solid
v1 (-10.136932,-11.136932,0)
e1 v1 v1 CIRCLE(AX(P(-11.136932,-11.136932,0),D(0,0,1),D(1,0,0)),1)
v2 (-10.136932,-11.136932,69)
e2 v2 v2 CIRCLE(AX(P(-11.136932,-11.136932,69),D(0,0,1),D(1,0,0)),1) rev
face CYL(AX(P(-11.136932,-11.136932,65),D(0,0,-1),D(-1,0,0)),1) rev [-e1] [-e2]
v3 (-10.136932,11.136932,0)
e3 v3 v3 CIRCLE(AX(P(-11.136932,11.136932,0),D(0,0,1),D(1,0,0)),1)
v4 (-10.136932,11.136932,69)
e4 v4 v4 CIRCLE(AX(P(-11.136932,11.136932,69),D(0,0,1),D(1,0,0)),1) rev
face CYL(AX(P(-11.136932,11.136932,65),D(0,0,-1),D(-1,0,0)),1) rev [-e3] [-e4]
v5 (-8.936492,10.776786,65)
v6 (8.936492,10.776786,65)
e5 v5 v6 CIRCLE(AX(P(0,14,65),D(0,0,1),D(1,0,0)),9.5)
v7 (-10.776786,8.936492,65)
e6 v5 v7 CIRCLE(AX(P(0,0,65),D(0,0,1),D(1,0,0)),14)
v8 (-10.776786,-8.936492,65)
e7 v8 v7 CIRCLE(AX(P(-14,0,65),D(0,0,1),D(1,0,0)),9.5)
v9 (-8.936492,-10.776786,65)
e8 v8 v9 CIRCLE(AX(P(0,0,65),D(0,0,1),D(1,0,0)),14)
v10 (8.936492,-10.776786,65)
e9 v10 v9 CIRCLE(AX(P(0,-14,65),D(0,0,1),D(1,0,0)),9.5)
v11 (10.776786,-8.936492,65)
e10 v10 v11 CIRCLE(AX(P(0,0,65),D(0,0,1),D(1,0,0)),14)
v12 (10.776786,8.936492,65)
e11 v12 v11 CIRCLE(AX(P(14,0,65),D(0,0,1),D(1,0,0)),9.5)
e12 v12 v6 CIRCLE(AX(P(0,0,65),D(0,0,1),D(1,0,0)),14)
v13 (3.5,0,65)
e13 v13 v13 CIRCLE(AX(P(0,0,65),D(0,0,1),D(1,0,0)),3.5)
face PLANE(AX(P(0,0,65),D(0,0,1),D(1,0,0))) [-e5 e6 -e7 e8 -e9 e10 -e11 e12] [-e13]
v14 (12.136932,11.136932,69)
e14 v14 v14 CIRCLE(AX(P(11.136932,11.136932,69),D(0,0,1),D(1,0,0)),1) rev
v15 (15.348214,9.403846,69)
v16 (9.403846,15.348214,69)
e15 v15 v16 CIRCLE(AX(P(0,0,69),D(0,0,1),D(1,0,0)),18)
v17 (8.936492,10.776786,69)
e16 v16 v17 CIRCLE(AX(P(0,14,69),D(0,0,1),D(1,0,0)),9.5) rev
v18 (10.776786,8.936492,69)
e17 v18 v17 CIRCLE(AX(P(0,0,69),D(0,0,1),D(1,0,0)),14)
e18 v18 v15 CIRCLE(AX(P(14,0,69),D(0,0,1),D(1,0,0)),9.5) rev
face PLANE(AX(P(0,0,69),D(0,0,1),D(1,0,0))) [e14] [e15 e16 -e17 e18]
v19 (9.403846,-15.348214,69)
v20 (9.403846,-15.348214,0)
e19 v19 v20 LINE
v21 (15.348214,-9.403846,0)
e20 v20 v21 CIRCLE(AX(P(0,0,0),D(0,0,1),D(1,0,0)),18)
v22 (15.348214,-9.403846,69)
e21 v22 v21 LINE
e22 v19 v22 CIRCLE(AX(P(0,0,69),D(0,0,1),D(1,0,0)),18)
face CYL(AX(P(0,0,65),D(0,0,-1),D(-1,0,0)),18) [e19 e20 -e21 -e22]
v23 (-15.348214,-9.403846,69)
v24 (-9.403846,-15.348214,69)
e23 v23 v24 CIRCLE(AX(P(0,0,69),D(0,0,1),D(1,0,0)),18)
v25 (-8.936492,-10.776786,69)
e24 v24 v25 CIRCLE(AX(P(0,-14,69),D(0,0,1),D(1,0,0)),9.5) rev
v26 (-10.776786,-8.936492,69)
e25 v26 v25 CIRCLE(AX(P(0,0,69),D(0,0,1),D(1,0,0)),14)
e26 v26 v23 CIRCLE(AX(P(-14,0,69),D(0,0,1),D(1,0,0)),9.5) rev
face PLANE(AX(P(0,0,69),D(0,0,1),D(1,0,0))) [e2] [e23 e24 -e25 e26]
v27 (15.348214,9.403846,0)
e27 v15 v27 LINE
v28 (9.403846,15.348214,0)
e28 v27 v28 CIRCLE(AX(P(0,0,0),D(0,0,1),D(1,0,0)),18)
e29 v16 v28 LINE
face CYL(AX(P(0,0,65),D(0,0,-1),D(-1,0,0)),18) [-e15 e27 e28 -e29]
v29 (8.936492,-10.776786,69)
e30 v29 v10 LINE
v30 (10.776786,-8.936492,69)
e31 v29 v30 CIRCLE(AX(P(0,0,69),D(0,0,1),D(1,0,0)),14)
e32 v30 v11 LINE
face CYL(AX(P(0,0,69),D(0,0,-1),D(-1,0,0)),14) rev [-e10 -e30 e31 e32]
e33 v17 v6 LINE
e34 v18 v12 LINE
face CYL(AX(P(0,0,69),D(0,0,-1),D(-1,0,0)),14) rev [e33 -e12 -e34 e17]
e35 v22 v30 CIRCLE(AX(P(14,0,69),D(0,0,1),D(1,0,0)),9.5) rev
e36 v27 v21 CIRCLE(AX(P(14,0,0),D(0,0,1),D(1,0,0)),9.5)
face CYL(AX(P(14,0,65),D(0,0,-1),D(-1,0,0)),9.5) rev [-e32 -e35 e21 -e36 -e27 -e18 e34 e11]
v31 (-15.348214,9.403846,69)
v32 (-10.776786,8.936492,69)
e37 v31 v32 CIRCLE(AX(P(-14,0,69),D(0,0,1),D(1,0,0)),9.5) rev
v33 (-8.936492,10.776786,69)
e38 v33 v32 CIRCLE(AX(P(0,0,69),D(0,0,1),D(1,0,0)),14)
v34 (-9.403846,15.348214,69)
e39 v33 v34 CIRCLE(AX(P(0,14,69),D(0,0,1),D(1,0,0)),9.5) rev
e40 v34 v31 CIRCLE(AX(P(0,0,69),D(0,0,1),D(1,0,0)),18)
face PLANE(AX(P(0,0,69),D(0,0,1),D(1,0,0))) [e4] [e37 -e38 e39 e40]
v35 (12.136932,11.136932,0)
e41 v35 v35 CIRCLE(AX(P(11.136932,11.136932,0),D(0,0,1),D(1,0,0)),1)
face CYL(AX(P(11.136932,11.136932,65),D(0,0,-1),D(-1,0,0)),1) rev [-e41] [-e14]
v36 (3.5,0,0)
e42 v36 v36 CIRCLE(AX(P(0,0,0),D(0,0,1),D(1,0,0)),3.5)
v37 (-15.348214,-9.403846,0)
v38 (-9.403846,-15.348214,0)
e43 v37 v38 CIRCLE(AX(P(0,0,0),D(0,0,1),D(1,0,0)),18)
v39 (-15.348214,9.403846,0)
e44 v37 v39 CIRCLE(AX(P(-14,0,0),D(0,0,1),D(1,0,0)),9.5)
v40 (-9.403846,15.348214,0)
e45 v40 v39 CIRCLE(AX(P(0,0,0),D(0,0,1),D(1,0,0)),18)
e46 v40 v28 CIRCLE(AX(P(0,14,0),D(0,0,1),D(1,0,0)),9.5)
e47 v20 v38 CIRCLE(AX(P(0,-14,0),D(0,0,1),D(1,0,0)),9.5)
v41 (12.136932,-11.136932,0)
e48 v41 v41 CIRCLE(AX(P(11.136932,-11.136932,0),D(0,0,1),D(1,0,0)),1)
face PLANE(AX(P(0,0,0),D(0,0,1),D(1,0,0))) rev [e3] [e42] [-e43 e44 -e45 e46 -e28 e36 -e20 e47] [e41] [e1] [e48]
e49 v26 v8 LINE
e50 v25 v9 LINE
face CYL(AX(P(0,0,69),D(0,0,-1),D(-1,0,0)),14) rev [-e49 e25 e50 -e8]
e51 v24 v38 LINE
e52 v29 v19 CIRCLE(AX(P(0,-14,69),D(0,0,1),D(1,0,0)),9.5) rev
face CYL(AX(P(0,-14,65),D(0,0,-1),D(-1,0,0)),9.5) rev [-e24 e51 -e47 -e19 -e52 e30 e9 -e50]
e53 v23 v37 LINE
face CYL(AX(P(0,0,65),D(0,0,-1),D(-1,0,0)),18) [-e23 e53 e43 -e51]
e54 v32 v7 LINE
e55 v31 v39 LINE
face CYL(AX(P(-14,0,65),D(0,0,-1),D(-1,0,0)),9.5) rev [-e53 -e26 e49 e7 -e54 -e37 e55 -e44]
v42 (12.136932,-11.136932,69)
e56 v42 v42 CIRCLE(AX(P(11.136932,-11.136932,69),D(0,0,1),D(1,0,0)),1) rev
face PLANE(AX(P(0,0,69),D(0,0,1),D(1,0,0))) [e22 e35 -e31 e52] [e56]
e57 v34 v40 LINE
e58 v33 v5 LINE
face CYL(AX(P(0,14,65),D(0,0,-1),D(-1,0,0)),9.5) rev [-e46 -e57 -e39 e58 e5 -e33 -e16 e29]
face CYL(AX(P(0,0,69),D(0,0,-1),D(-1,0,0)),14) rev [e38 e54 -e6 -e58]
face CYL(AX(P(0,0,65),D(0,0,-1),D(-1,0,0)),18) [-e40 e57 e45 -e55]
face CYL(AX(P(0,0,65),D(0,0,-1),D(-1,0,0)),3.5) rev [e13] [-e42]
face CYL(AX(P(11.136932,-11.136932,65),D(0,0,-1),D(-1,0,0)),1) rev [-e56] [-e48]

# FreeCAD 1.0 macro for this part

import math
import FreeCAD as App
import Part
import Sketcher
Q = App.Units.Quantity

doc = App.newDocument("Part")
params = doc.addObject("Spreadsheet::Sheet", "Params")
for row, (alias, value) in enumerate([
    ("sketch1_diameter", "2 mm"),
    ("sketch1_diameter2", "7 mm"),
    ("sketch1_radius", "18 mm"),
    ("sketch1_radius2", "9.5 mm"),
    ("pad1_length", "65 mm"),
    ("sketch2_diameter", "2 mm"),
    ("sketch2_radius", "14 mm"),
    ("sketch2_radius2", "18 mm"),
    ("sketch2_radius3", "9.5 mm"),
    ("pad2_length", "4 mm"),
], start=1):
    params.set(f"A{row}", alias)
    params.set(f"B{row}", "=" + value)
    params.setAlias(f"B{row}", alias)

body = doc.addObject("PartDesign::Body", "Body")

# Sketch on XY plane
sketch1 = body.newObject("Sketcher::SketchObject", "Sketch")
sketch1.AttachmentSupport = (doc.getObject("XY_Plane"), [""])
sketch1.MapMode = "FlatFace"
sketch1.addGeometry([
    Part.ArcOfCircle(Part.Circle(App.Vector(14, 0, 0), App.Vector(0, 0, 1), 9.5), math.radians(81.841193), math.radians(278.158807)),  # 0
    Part.ArcOfCircle(Part.Circle(App.Vector(0, 0, 0), App.Vector(0, 0, 1), 18), math.radians(31.495788), math.radians(58.504212)),  # 1
    Part.ArcOfCircle(Part.Circle(App.Vector(0, 14, 0), App.Vector(0, 0, 1), 9.5), math.radians(0), math.radians(8.158807)),  # 2
    Part.ArcOfCircle(Part.Circle(App.Vector(0, 14, 0), App.Vector(0, 0, 1), 9.5), math.radians(171.841193), math.radians(360)),  # 3
    Part.ArcOfCircle(Part.Circle(App.Vector(0, 0, 0), App.Vector(0, 0, 1), 18), math.radians(121.495788), math.radians(148.504212)),  # 4
    Part.ArcOfCircle(Part.Circle(App.Vector(-14, 0, 0), App.Vector(0, 0, 1), 9.5), math.radians(0), math.radians(98.158807)),  # 5
    Part.ArcOfCircle(Part.Circle(App.Vector(-14, 0, 0), App.Vector(0, 0, 1), 9.5), math.radians(-98.158807), math.radians(0)),  # 6
    Part.ArcOfCircle(Part.Circle(App.Vector(0, 0, 0), App.Vector(0, 0, 1), 18), math.radians(-148.504212), math.radians(-121.495788)),  # 7
    Part.ArcOfCircle(Part.Circle(App.Vector(0, -14, 0), App.Vector(0, 0, 1), 9.5), math.radians(0), math.radians(188.158807)),  # 8
    Part.ArcOfCircle(Part.Circle(App.Vector(0, -14, 0), App.Vector(0, 0, 1), 9.5), math.radians(-8.158807), math.radians(0)),  # 9
    Part.ArcOfCircle(Part.Circle(App.Vector(0, 0, 0), App.Vector(0, 0, 1), 18), math.radians(-58.504212), math.radians(-31.495788)),  # 10
    Part.Circle(App.Vector(-11.136932, -11.136932, 0), App.Vector(0, 0, 1), 1),  # 11
    Part.Circle(App.Vector(11.136932, -11.136932, 0), App.Vector(0, 0, 1), 1),  # 12
    Part.Circle(App.Vector(-11.136932, 11.136932, 0), App.Vector(0, 0, 1), 1),  # 13
    Part.Circle(App.Vector(0, 0, 0), App.Vector(0, 0, 1), 3.5),  # 14
    Part.Circle(App.Vector(11.136932, 11.136932, 0), App.Vector(0, 0, 1), 1),  # 15
], False)
sketch1.addConstraint([
    Sketcher.Constraint("Coincident", 0, 1, 1, 1),
    Sketcher.Constraint("Coincident", 1, 2, 2, 2),
    Sketcher.Constraint("Tangent", 2, 1, 3, 2),
    Sketcher.Constraint("Coincident", 3, 1, 4, 1),
    Sketcher.Constraint("Coincident", 4, 2, 5, 2),
    Sketcher.Constraint("Tangent", 5, 1, 6, 2),
    Sketcher.Constraint("Coincident", 6, 1, 7, 1),
    Sketcher.Constraint("Coincident", 7, 2, 8, 2),
    Sketcher.Constraint("Tangent", 8, 1, 9, 2),
    Sketcher.Constraint("Coincident", 9, 1, 10, 1),
    Sketcher.Constraint("Coincident", 10, 2, 0, 2),
    Sketcher.Constraint("Coincident", 1, 3, -1, 1),
    Sketcher.Constraint("Coincident", 4, 3, -1, 1),
    Sketcher.Constraint("Coincident", 7, 3, -1, 1),
    Sketcher.Constraint("Coincident", 10, 3, -1, 1),
    Sketcher.Constraint("Coincident", 14, 3, -1, 1),
    Sketcher.Constraint("Equal", 0, 2),
    Sketcher.Constraint("Equal", 2, 3),
    Sketcher.Constraint("Equal", 1, 4),
    Sketcher.Constraint("Equal", 3, 5),
    Sketcher.Constraint("Equal", 5, 6),
    Sketcher.Constraint("Equal", 4, 7),
    Sketcher.Constraint("Equal", 6, 8),
    Sketcher.Constraint("Equal", 8, 9),
    Sketcher.Constraint("Equal", 7, 10),
    Sketcher.Constraint("Equal", 11, 12),
    Sketcher.Constraint("Equal", 12, 13),
    Sketcher.Constraint("Equal", 13, 15),
    Sketcher.Constraint("Symmetric", 0, 3, 5, 3, -1, 1),
    Sketcher.Constraint("Symmetric", 2, 3, 8, 3, -1, 1),
    Sketcher.Constraint("Symmetric", 12, 3, 13, 3, -1, 1),
    Sketcher.Constraint("Symmetric", 11, 3, 15, 3, -1, 1),
    Sketcher.Constraint("Symmetric", 11, 3, 12, 3, -2),
    Sketcher.Constraint("Symmetric", 2, 1, 8, 1, -1),
    Sketcher.Constraint("PointOnObject", 0, 3, -1),
    Sketcher.Constraint("PointOnObject", 5, 1, -1),
    Sketcher.Constraint("Horizontal", 3, 3, 2, 1),
    Sketcher.Constraint("Diameter", 11, Q("2 mm")),
    Sketcher.Constraint("Diameter", 14, Q("7 mm")),
    Sketcher.Constraint("Radius", 1, Q("18 mm")),
    Sketcher.Constraint("Radius", 0, Q("9.5 mm")),
    Sketcher.Constraint("DistanceX", -1, 1, 0, 3, Q("14 mm")),
    Sketcher.Constraint("DistanceY", -1, 1, 2, 3, Q("14 mm")),
    Sketcher.Constraint("DistanceX", 11, 3, -1, 1, Q("11.136932 mm")),
    Sketcher.Constraint("DistanceY", 11, 3, -1, 1, Q("11.136932 mm")),
])
sketch1.setExpression("Constraints[37]", "Params.sketch1_diameter")
sketch1.setExpression("Constraints[38]", "Params.sketch1_diameter2")
sketch1.setExpression("Constraints[39]", "Params.sketch1_radius")
sketch1.setExpression("Constraints[40]", "Params.sketch1_radius2")
pad1 = body.newObject("PartDesign::Pad", "Pad")
pad1.Profile = sketch1
pad1.setExpression("Length", "Params.pad1_length")

# Sketch on XY plane
sketch2 = body.newObject("Sketcher::SketchObject", "Sketch001")
sketch2.AttachmentSupport = (doc.getObject("XY_Plane"), [""])
sketch2.MapMode = "FlatFace"
sketch2.AttachmentOffset = App.Placement(App.Vector(0, 0, 65), App.Rotation())
sketch2.addGeometry([
    Part.ArcOfCircle(Part.Circle(App.Vector(0, -14, 0), App.Vector(0, 0, 1), 9.5), math.radians(160.166638), math.radians(188.158807)),  # 0
    Part.ArcOfCircle(Part.Circle(App.Vector(0, 0, 0), App.Vector(0, 0, 1), 14), math.radians(-140.333276), math.radians(-129.666724)),  # 1
    Part.ArcOfCircle(Part.Circle(App.Vector(-14, 0, 0), App.Vector(0, 0, 1), 9.5), math.radians(-98.158807), math.radians(-70.166638)),  # 2
    Part.ArcOfCircle(Part.Circle(App.Vector(0, 0, 0), App.Vector(0, 0, 1), 18), math.radians(-148.504212), math.radians(-121.495788)),  # 3
    Part.Circle(App.Vector(-11.136932, -11.136932, 0), App.Vector(0, 0, 1), 1),  # 4
    Part.ArcOfCircle(Part.Circle(App.Vector(14, 0, 0), App.Vector(0, 0, 1), 9.5), math.radians(-109.833362), math.radians(-81.841193)),  # 5
    Part.ArcOfCircle(Part.Circle(App.Vector(0, 0, 0), App.Vector(0, 0, 1), 14), math.radians(-50.333276), math.radians(-39.666724)),  # 6
    Part.ArcOfCircle(Part.Circle(App.Vector(0, -14, 0), App.Vector(0, 0, 1), 9.5), math.radians(0), math.radians(19.833362)),  # 7
    Part.ArcOfCircle(Part.Circle(App.Vector(0, -14, 0), App.Vector(0, 0, 1), 9.5), math.radians(-8.158807), math.radians(0)),  # 8
    Part.ArcOfCircle(Part.Circle(App.Vector(0, 0, 0), App.Vector(0, 0, 1), 18), math.radians(-58.504212), math.radians(-31.495788)),  # 9
    Part.Circle(App.Vector(11.136932, -11.136932, 0), App.Vector(0, 0, 1), 1),  # 10
    Part.ArcOfCircle(Part.Circle(App.Vector(0, 0, 0), App.Vector(0, 0, 1), 14), math.radians(39.666724), math.radians(50.333276)),  # 11
    Part.ArcOfCircle(Part.Circle(App.Vector(14, 0, 0), App.Vector(0, 0, 1), 9.5), math.radians(81.841193), math.radians(109.833362)),  # 12
    Part.ArcOfCircle(Part.Circle(App.Vector(0, 0, 0), App.Vector(0, 0, 1), 18), math.radians(31.495788), math.radians(58.504212)),  # 13
    Part.ArcOfCircle(Part.Circle(App.Vector(0, 14, 0), App.Vector(0, 0, 1), 9.5), math.radians(0), math.radians(8.158807)),  # 14
    Part.ArcOfCircle(Part.Circle(App.Vector(0, 14, 0), App.Vector(0, 0, 1), 9.5), math.radians(-19.833362), math.radians(0)),  # 15
    Part.Circle(App.Vector(11.136932, 11.136932, 0), App.Vector(0, 0, 1), 1),  # 16
    Part.ArcOfCircle(Part.Circle(App.Vector(0, 0, 0), App.Vector(0, 0, 1), 14), math.radians(129.666724), math.radians(140.333276)),  # 17
    Part.ArcOfCircle(Part.Circle(App.Vector(0, 14, 0), App.Vector(0, 0, 1), 9.5), math.radians(171.841193), math.radians(199.833362)),  # 18
    Part.ArcOfCircle(Part.Circle(App.Vector(0, 0, 0), App.Vector(0, 0, 1), 18), math.radians(121.495788), math.radians(148.504212)),  # 19
    Part.ArcOfCircle(Part.Circle(App.Vector(-14, 0, 0), App.Vector(0, 0, 1), 9.5), math.radians(70.166638), math.radians(98.158807)),  # 20
    Part.Circle(App.Vector(-11.136932, 11.136932, 0), App.Vector(0, 0, 1), 1),  # 21
], False)
sketch2.addConstraint([
    Sketcher.Constraint("Coincident", 0, 1, 1, 2),
    Sketcher.Constraint("Coincident", 1, 1, 2, 2),
    Sketcher.Constraint("Coincident", 2, 1, 3, 1),
    Sketcher.Constraint("Coincident", 3, 2, 0, 2),
    Sketcher.Constraint("Coincident", 5, 1, 6, 2),
    Sketcher.Constraint("Coincident", 6, 1, 7, 2),
    Sketcher.Constraint("Tangent", 7, 1, 8, 2),
    Sketcher.Constraint("Coincident", 8, 1, 9, 1),
    Sketcher.Constraint("Coincident", 9, 2, 5, 2),
    Sketcher.Constraint("Coincident", 11, 1, 12, 2),
    Sketcher.Constraint("Coincident", 12, 1, 13, 1),
    Sketcher.Constraint("Coincident", 13, 2, 14, 2),
    Sketcher.Constraint("Tangent", 14, 1, 15, 2),
    Sketcher.Constraint("Coincident", 15, 1, 11, 2),
    Sketcher.Constraint("Coincident", 17, 1, 18, 2),
    Sketcher.Constraint("Coincident", 18, 1, 19, 1),
    Sketcher.Constraint("Coincident", 19, 2, 20, 2),
    Sketcher.Constraint("Coincident", 20, 1, 17, 2),
    Sketcher.Constraint("Coincident", 1, 3, -1, 1),
    Sketcher.Constraint("Coincident", 3, 3, -1, 1),
    Sketcher.Constraint("Coincident", 6, 3, -1, 1),
    Sketcher.Constraint("Coincident", 9, 3, -1, 1),
    Sketcher.Constraint("Coincident", 11, 3, -1, 1),
    Sketcher.Constraint("Coincident", 13, 3, -1, 1),
    Sketcher.Constraint("Coincident", 17, 3, -1, 1),
    Sketcher.Constraint("Coincident", 19, 3, -1, 1),
    Sketcher.Constraint("Coincident", 7, 3, 0, 3),
    Sketcher.Constraint("Coincident", 12, 3, 5, 3),
    Sketcher.Constraint("Coincident", 18, 3, 14, 3),
    Sketcher.Constraint("Coincident", 20, 3, 2, 3),
    Sketcher.Constraint("Equal", 0, 2),
    Sketcher.Constraint("Equal", 2, 5),
    Sketcher.Constraint("Equal", 1, 6),
    Sketcher.Constraint("Equal", 5, 7),
    Sketcher.Constraint("Equal", 7, 8),
    Sketcher.Constraint("Equal", 3, 9),
    Sketcher.Constraint("Equal", 4, 10),
    Sketcher.Constraint("Equal", 6, 11),
    Sketcher.Constraint("Equal", 8, 12),
    Sketcher.Constraint("Equal", 9, 13),
    Sketcher.Constraint("Equal", 12, 14),
    Sketcher.Constraint("Equal", 14, 15),
    Sketcher.Constraint("Equal", 10, 16),
    Sketcher.Constraint("Equal", 11, 17),
    Sketcher.Constraint("Equal", 15, 18),
    Sketcher.Constraint("Equal", 13, 19),
    Sketcher.Constraint("Equal", 18, 20),
    Sketcher.Constraint("Equal", 16, 21),
    Sketcher.Constraint("Symmetric", 2, 3, 5, 3, -1, 1),
    Sketcher.Constraint("Symmetric", 0, 3, 14, 3, -1, 1),
    Sketcher.Constraint("Symmetric", 4, 3, 16, 3, -1, 1),
    Sketcher.Constraint("Symmetric", 10, 3, 21, 3, -1, 1),
    Sketcher.Constraint("Symmetric", 4, 3, 10, 3, -2),
    Sketcher.Constraint("Symmetric", 7, 1, 14, 1, -1),
    Sketcher.Constraint("PointOnObject", 2, 3, -1),
    Sketcher.Constraint("Horizontal", 8, 3, 7, 1),
    Sketcher.Constraint("Diameter", 4, Q("2 mm")),
    Sketcher.Constraint("Radius", 1, Q("14 mm")),
    Sketcher.Constraint("Radius", 3, Q("18 mm")),
    Sketcher.Constraint("Radius", 0, Q("9.5 mm")),
    Sketcher.Constraint("DistanceY", 0, 3, -1, 1, Q("14 mm")),
    Sketcher.Constraint("DistanceX", 2, 3, -1, 1, Q("14 mm")),
    Sketcher.Constraint("DistanceX", 4, 3, -1, 1, Q("11.136932 mm")),
    Sketcher.Constraint("DistanceY", 4, 3, -1, 1, Q("11.136932 mm")),
])
sketch2.setExpression("Constraints[56]", "Params.sketch2_diameter")
sketch2.setExpression("Constraints[57]", "Params.sketch2_radius")
sketch2.setExpression("Constraints[58]", "Params.sketch2_radius2")
sketch2.setExpression("Constraints[59]", "Params.sketch2_radius3")
pad2 = body.newObject("PartDesign::Pad", "Pad001")
pad2.Profile = sketch2
pad2.setExpression("Length", "Params.pad2_length")

doc.recompute()
